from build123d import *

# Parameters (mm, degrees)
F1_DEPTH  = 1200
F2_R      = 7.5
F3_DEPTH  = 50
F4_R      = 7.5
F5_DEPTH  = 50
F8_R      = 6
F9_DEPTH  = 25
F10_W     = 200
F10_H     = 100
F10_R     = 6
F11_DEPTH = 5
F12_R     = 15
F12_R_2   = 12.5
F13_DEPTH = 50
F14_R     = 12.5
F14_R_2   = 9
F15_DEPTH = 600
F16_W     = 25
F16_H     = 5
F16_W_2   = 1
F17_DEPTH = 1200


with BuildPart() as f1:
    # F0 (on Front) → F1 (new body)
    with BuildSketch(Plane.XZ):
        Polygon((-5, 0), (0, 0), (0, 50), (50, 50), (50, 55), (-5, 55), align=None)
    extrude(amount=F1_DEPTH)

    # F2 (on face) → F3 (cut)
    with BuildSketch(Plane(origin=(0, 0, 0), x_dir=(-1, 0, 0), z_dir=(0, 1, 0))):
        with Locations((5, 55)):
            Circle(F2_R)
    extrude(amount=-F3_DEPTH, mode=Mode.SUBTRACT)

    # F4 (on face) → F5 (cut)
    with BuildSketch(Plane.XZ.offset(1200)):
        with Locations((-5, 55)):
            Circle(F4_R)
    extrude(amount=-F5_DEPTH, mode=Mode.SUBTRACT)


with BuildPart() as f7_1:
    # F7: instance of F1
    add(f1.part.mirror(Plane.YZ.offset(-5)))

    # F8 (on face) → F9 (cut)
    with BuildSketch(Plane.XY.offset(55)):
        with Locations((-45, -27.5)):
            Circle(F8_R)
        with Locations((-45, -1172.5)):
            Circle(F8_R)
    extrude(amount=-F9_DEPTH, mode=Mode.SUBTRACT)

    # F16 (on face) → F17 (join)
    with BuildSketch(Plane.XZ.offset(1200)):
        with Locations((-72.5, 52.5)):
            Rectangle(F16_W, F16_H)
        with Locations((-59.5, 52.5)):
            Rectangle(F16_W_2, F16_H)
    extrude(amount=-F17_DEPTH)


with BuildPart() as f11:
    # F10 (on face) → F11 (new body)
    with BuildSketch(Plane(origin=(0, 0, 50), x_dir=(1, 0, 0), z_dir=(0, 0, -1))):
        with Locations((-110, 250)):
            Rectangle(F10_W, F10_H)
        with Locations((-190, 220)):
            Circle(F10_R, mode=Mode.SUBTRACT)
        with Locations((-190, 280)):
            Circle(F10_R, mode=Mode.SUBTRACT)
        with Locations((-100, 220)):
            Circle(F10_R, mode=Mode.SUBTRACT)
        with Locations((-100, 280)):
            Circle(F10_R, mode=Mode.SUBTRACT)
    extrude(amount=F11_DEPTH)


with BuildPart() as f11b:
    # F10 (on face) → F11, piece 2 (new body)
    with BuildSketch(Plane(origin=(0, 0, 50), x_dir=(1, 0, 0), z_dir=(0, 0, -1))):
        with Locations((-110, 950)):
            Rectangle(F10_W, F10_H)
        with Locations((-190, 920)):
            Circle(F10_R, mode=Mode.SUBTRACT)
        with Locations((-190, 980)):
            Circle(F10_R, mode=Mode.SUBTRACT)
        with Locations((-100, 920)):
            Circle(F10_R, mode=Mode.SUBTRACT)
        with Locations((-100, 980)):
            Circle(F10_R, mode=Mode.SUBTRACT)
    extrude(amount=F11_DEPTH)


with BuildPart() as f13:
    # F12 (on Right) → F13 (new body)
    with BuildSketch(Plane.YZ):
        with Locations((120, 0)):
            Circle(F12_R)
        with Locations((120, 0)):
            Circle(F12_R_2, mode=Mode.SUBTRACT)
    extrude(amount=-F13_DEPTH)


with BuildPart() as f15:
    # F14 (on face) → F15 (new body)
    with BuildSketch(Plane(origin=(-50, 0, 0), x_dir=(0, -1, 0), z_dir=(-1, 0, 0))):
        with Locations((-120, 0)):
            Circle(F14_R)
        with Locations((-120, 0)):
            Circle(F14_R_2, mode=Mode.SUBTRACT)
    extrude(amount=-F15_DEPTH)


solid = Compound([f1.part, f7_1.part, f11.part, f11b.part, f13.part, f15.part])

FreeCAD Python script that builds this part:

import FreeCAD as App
import Part
import Sketcher

V = App.Vector
Q = App.Units.Quantity

doc = App.newDocument("Part")
body = doc.addObject("PartDesign::Body", "Body")

# Sketch on XZ plane
sketch1 = body.newObject("Sketcher::SketchObject", "Sketch")
sketch1.AttachmentSupport = (doc.getObject("XZ_Plane"), [""])
sketch1.MapMode = "FlatFace"
sketch1.addGeometry(Part.LineSegment(V(-5, 0, 0), V(0, 0, 0)), False)
sketch1.addGeometry(Part.LineSegment(V(0, 0, 0), V(0, 50, 0)), False)
sketch1.addGeometry(Part.LineSegment(V(0, 50, 0), V(50, 50, 0)), False)
sketch1.addGeometry(Part.LineSegment(V(50, 50, 0), V(50, 55, 0)), False)
sketch1.addGeometry(Part.LineSegment(V(50, 55, 0), V(-5, 55, 0)), False)
sketch1.addGeometry(Part.LineSegment(V(-5, 55, 0), V(-5, 0, 0)), False)
sketch1.addConstraint(Sketcher.Constraint("Coincident", 0, 2, 1, 1))
sketch1.addConstraint(Sketcher.Constraint("Coincident", 1, 2, 2, 1))
sketch1.addConstraint(Sketcher.Constraint("Coincident", 2, 2, 3, 1))
sketch1.addConstraint(Sketcher.Constraint("Coincident", 3, 2, 4, 1))
sketch1.addConstraint(Sketcher.Constraint("Coincident", 4, 2, 5, 1))
sketch1.addConstraint(Sketcher.Constraint("Coincident", 5, 2, 0, 1))
sketch1.addConstraint(Sketcher.Constraint("Horizontal", 0))
sketch1.addConstraint(Sketcher.Constraint("Vertical", 1))
sketch1.addConstraint(Sketcher.Constraint("Horizontal", 2))
sketch1.addConstraint(Sketcher.Constraint("Vertical", 3))
sketch1.addConstraint(Sketcher.Constraint("Horizontal", 4))
sketch1.addConstraint(Sketcher.Constraint("Vertical", 5))
sketch1.addConstraint(Sketcher.Constraint("Coincident", 0, 2, -1, 1))
sketch1.addConstraint(Sketcher.Constraint("Equal", 2, 1))
sketch1.addConstraint(Sketcher.Constraint("Equal", 0, 3))
sketch1.addConstraint(Sketcher.Constraint("DistanceX", 0, 1, 0, 2, Q("5 mm")))
sketch1.addConstraint(Sketcher.Constraint("DistanceX", 2, 1, 2, 2, Q("50 mm")))
pad1 = body.newObject("PartDesign::Pad", "Pad")
pad1.Profile = sketch1
pad1.Length = 1200

# Sketch on XZ plane
sketch2 = body.newObject("Sketcher::SketchObject", "Sketch001")
sketch2.AttachmentSupport = (doc.getObject("XZ_Plane"), [""])
sketch2.MapMode = "FlatFace"
sketch2.addGeometry(Part.Circle(V(-5, 55, 0), V(0, 0, 1), 8), False)
sketch2.addConstraint(Sketcher.Constraint("Diameter", 0, Q("15 mm")))
sketch2.addConstraint(Sketcher.Constraint("DistanceX", 0, 3, -1, 1, Q("5 mm")))
sketch2.addConstraint(Sketcher.Constraint("DistanceY", -1, 1, 0, 3, Q("55 mm")))
pocket1 = body.newObject("PartDesign::Pocket", "Pocket")
pocket1.Profile = sketch2
pocket1.Length = 50
pocket1.Reversed = True

# Sketch on XZ plane
sketch3 = body.newObject("Sketcher::SketchObject", "Sketch002")
sketch3.AttachmentSupport = (doc.getObject("XZ_Plane"), [""])
sketch3.MapMode = "FlatFace"
sketch3.AttachmentOffset = App.Placement(V(0, 0, 1200), App.Rotation())
sketch3.addGeometry(Part.Circle(V(-5, 55, 0), V(0, 0, 1), 8), False)
sketch3.addConstraint(Sketcher.Constraint("Diameter", 0, Q("15 mm")))
sketch3.addConstraint(Sketcher.Constraint("DistanceX", 0, 3, -1, 1, Q("5 mm")))
sketch3.addConstraint(Sketcher.Constraint("DistanceY", -1, 1, 0, 3, Q("55 mm")))
pocket2 = body.newObject("PartDesign::Pocket", "Pocket001")
pocket2.Profile = sketch3
pocket2.Length = 50
body2 = doc.addObject("PartDesign::Body", "Body001")
doc.recompute()

mirroring = doc.addObject("Part::Mirroring", "Mirroring")
mirroring.Source = body
mirroring.Base = V(-5, 0, 0)
mirroring.Normal = V(1, 0, 0)
body2.BaseFeature = mirroring
doc.recompute()

# Sketch on XY plane
sketch4 = body2.newObject("Sketcher::SketchObject", "Sketch003")
sketch4.AttachmentSupport = (doc.getObject("XY_Plane001"), [""])
sketch4.MapMode = "FlatFace"
sketch4.AttachmentOffset = App.Placement(V(0, 0, 55), App.Rotation())
sketch4.addGeometry(Part.Circle(V(-45, -28, 0), V(0, 0, 1), 6), False)
sketch4.addGeometry(Part.Circle(V(-45, -1172, 0), V(0, 0, 1), 6), False)
sketch4.addConstraint(Sketcher.Constraint("Equal", 0, 1))
sketch4.addConstraint(Sketcher.Constraint("Vertical", 0, 3, 1, 3))
sketch4.addConstraint(Sketcher.Constraint("Diameter", 0, Q("12 mm")))
sketch4.addConstraint(Sketcher.Constraint("DistanceX", 0, 3, -1, 1, Q("45 mm")))
sketch4.addConstraint(Sketcher.Constraint("DistanceY", 1, 3, 0, 3, Q("1145 mm")))
sketch4.addConstraint(Sketcher.Constraint("DistanceY", 0, 3, -1, 1, Q("27.5 mm")))
pocket3 = body2.newObject("PartDesign::Pocket", "Pocket002")
pocket3.Profile = sketch4
pocket3.Length = 25

# Sketch on XZ plane
sketch5 = body2.newObject("Sketcher::SketchObject", "Sketch004")
sketch5.AttachmentSupport = (doc.getObject("XZ_Plane001"), [""])
sketch5.MapMode = "FlatFace"
sketch5.AttachmentOffset = App.Placement(V(0, 0, 1200), App.Rotation())
sketch5.addGeometry(Part.LineSegment(V(-85, 55, 0), V(-85, 50, 0)), False)
sketch5.addGeometry(Part.LineSegment(V(-85, 50, 0), V(-59, 50, 0)), False)
sketch5.addGeometry(Part.LineSegment(V(-59, 50, 0), V(-59, 55, 0)), False)
sketch5.addGeometry(Part.LineSegment(V(-59, 55, 0), V(-85, 55, 0)), False)
sketch5.addConstraint(Sketcher.Constraint("Coincident", 0, 2, 1, 1))
sketch5.addConstraint(Sketcher.Constraint("Coincident", 1, 2, 2, 1))
sketch5.addConstraint(Sketcher.Constraint("Coincident", 2, 2, 3, 1))
sketch5.addConstraint(Sketcher.Constraint("Coincident", 3, 2, 0, 1))
sketch5.addConstraint(Sketcher.Constraint("Vertical", 0))
sketch5.addConstraint(Sketcher.Constraint("Horizontal", 1))
sketch5.addConstraint(Sketcher.Constraint("Vertical", 2))
sketch5.addConstraint(Sketcher.Constraint("Horizontal", 3))
sketch5.addConstraint(Sketcher.Constraint("DistanceX", 1, 1, 1, 2, Q("26 mm")))
sketch5.addConstraint(Sketcher.Constraint("DistanceY", 0, 2, 0, 1, Q("5 mm")))
sketch5.addConstraint(Sketcher.Constraint("DistanceX", 0, 2, -1, 1, Q("85 mm")))
sketch5.addConstraint(Sketcher.Constraint("DistanceY", -1, 1, 0, 2, Q("50 mm")))
pad2 = body2.newObject("PartDesign::Pad", "Pad001")
pad2.Profile = sketch5
pad2.Length = 1200
pad2.Reversed = True
body3 = doc.addObject("PartDesign::Body", "Body002")

# Sketch on XY plane
sketch6 = body3.newObject("Sketcher::SketchObject", "Sketch005")
sketch6.AttachmentSupport = (doc.getObject("XY_Plane002"), [""])
sketch6.MapMode = "FlatFace"
sketch6.AttachmentOffset = App.Placement(V(0, 0, 50), App.Rotation())
sketch6.addGeometry(Part.LineSegment(V(-210, -300, 0), V(-210, -200, 0)), False)
sketch6.addGeometry(Part.LineSegment(V(-210, -200, 0), V(-10, -200, 0)), False)
sketch6.addGeometry(Part.LineSegment(V(-10, -200, 0), V(-10, -300, 0)), False)
sketch6.addGeometry(Part.LineSegment(V(-10, -300, 0), V(-210, -300, 0)), False)
sketch6.addGeometry(Part.Circle(V(-190, -220, 0), V(0, 0, 1), 6), False)
sketch6.addGeometry(Part.Circle(V(-100, -220, 0), V(0, 0, 1), 6), False)
sketch6.addGeometry(Part.Circle(V(-190, -280, 0), V(0, 0, 1), 6), False)
sketch6.addGeometry(Part.Circle(V(-100, -280, 0), V(0, 0, 1), 6), False)
sketch6.addConstraint(Sketcher.Constraint("Coincident", 0, 2, 1, 1))
sketch6.addConstraint(Sketcher.Constraint("Coincident", 1, 2, 2, 1))
sketch6.addConstraint(Sketcher.Constraint("Coincident", 2, 2, 3, 1))
sketch6.addConstraint(Sketcher.Constraint("Coincident", 3, 2, 0, 1))
sketch6.addConstraint(Sketcher.Constraint("Vertical", 0))
sketch6.addConstraint(Sketcher.Constraint("Horizontal", 1))
sketch6.addConstraint(Sketcher.Constraint("Vertical", 2))
sketch6.addConstraint(Sketcher.Constraint("Horizontal", 3))
sketch6.addConstraint(Sketcher.Constraint("Equal", 4, 5))
sketch6.addConstraint(Sketcher.Constraint("Equal", 5, 6))
sketch6.addConstraint(Sketcher.Constraint("Equal", 6, 7))
sketch6.addConstraint(Sketcher.Constraint("Horizontal", 4, 3, 5, 3))
sketch6.addConstraint(Sketcher.Constraint("Horizontal", 6, 3, 7, 3))
sketch6.addConstraint(Sketcher.Constraint("Vertical", 4, 3, 6, 3))
sketch6.addConstraint(Sketcher.Constraint("Vertical", 5, 3, 7, 3))
sketch6.addConstraint(Sketcher.Constraint("Diameter", 4, Q("12 mm")))
sketch6.addConstraint(Sketcher.Constraint("DistanceX", 1, 1, 1, 2, Q("200 mm")))
sketch6.addConstraint(Sketcher.Constraint("DistanceY", 0, 1, 0, 2, Q("100 mm")))
sketch6.addConstraint(Sketcher.Constraint("DistanceX", 4, 3, -1, 1, Q("190 mm")))
sketch6.addConstraint(Sketcher.Constraint("DistanceY", 4, 3, -1, 1, Q("220 mm")))
sketch6.addConstraint(Sketcher.Constraint("DistanceX", 5, 3, -1, 1, Q("100 mm")))
sketch6.addConstraint(Sketcher.Constraint("DistanceY", 6, 3, -1, 1, Q("280 mm")))
sketch6.addConstraint(Sketcher.Constraint("DistanceX", 0, 2, -1, 1, Q("210 mm")))
sketch6.addConstraint(Sketcher.Constraint("DistanceY", 0, 2, -1, 1, Q("200 mm")))
pad3 = body3.newObject("PartDesign::Pad", "Pad002")
pad3.Profile = sketch6
pad3.Length = 5
pad3.Reversed = True
body4 = doc.addObject("PartDesign::Body", "Body003")

# Sketch on XY plane
sketch7 = body4.newObject("Sketcher::SketchObject", "Sketch006")
sketch7.AttachmentSupport = (doc.getObject("XY_Plane003"), [""])
sketch7.MapMode = "FlatFace"
sketch7.AttachmentOffset = App.Placement(V(0, 0, 50), App.Rotation())
sketch7.addGeometry(Part.LineSegment(V(-210, -1000, 0), V(-210, -900, 0)), False)
sketch7.addGeometry(Part.LineSegment(V(-210, -900, 0), V(-10, -900, 0)), False)
sketch7.addGeometry(Part.LineSegment(V(-10, -900, 0), V(-10, -1000, 0)), False)
sketch7.addGeometry(Part.LineSegment(V(-10, -1000, 0), V(-210, -1000, 0)), False)
sketch7.addGeometry(Part.Circle(V(-190, -920, 0), V(0, 0, 1), 6), False)
sketch7.addGeometry(Part.Circle(V(-100, -920, 0), V(0, 0, 1), 6), False)
sketch7.addGeometry(Part.Circle(V(-190, -980, 0), V(0, 0, 1), 6), False)
sketch7.addGeometry(Part.Circle(V(-100, -980, 0), V(0, 0, 1), 6), False)
sketch7.addConstraint(Sketcher.Constraint("Coincident", 0, 2, 1, 1))
sketch7.addConstraint(Sketcher.Constraint("Coincident", 1, 2, 2, 1))
sketch7.addConstraint(Sketcher.Constraint("Coincident", 2, 2, 3, 1))
sketch7.addConstraint(Sketcher.Constraint("Coincident", 3, 2, 0, 1))
sketch7.addConstraint(Sketcher.Constraint("Vertical", 0))
sketch7.addConstraint(Sketcher.Constraint("Horizontal", 1))
sketch7.addConstraint(Sketcher.Constraint("Vertical", 2))
sketch7.addConstraint(Sketcher.Constraint("Horizontal", 3))
sketch7.addConstraint(Sketcher.Constraint("Equal", 4, 5))
sketch7.addConstraint(Sketcher.Constraint("Equal", 5, 6))
sketch7.addConstraint(Sketcher.Constraint("Equal", 6, 7))
sketch7.addConstraint(Sketcher.Constraint("Horizontal", 4, 3, 5, 3))
sketch7.addConstraint(Sketcher.Constraint("Horizontal", 6, 3, 7, 3))
sketch7.addConstraint(Sketcher.Constraint("Vertical", 4, 3, 6, 3))
sketch7.addConstraint(Sketcher.Constraint("Vertical", 5, 3, 7, 3))
sketch7.addConstraint(Sketcher.Constraint("Diameter", 4, Q("12 mm")))
sketch7.addConstraint(Sketcher.Constraint("DistanceX", 1, 1, 1, 2, Q("200 mm")))
sketch7.addConstraint(Sketcher.Constraint("DistanceY", 0, 1, 0, 2, Q("100 mm")))
sketch7.addConstraint(Sketcher.Constraint("DistanceX", 4, 3, -1, 1, Q("190 mm")))
sketch7.addConstraint(Sketcher.Constraint("DistanceY", 4, 3, -1, 1, Q("920 mm")))
sketch7.addConstraint(Sketcher.Constraint("DistanceX", 5, 3, -1, 1, Q("100 mm")))
sketch7.addConstraint(Sketcher.Constraint("DistanceY", 6, 3, -1, 1, Q("980 mm")))
sketch7.addConstraint(Sketcher.Constraint("DistanceX", 0, 2, -1, 1, Q("210 mm")))
sketch7.addConstraint(Sketcher.Constraint("DistanceY", 0, 2, -1, 1, Q("900 mm")))
pad4 = body4.newObject("PartDesign::Pad", "Pad003")
pad4.Profile = sketch7
pad4.Length = 5
pad4.Reversed = True
body5 = doc.addObject("PartDesign::Body", "Body004")

# Sketch on YZ plane
sketch8 = body5.newObject("Sketcher::SketchObject", "Sketch007")
sketch8.AttachmentSupport = (doc.getObject("YZ_Plane004"), [""])
sketch8.MapMode = "FlatFace"
sketch8.addGeometry(Part.Circle(V(120, 0, 0), V(0, 0, 1), 15), False)
sketch8.addGeometry(Part.Circle(V(120, 0, 0), V(0, 0, 1), 12), False)
sketch8.addConstraint(Sketcher.Constraint("Coincident", 1, 3, 0, 3))
sketch8.addConstraint(Sketcher.Constraint("PointOnObject", 0, 3, -1))
sketch8.addConstraint(Sketcher.Constraint("Diameter", 0, Q("30 mm")))
sketch8.addConstraint(Sketcher.Constraint("Diameter", 1, Q("25 mm")))
sketch8.addConstraint(Sketcher.Constraint("DistanceX", -1, 1, 0, 3, Q("120 mm")))
pad5 = body5.newObject("PartDesign::Pad", "Pad004")
pad5.Profile = sketch8
pad5.Length = 50
pad5.Reversed = True
body6 = doc.addObject("PartDesign::Body", "Body005")

# Sketch on YZ plane
sketch9 = body6.newObject("Sketcher::SketchObject", "Sketch008")
sketch9.AttachmentSupport = (doc.getObject("YZ_Plane005"), [""])
sketch9.MapMode = "FlatFace"
sketch9.AttachmentOffset = App.Placement(V(0, 0, -50), App.Rotation())
sketch9.addGeometry(Part.Circle(V(120, 0, 0), V(0, 0, 1), 12), False)
sketch9.addGeometry(Part.Circle(V(120, 0, 0), V(0, 0, 1), 9), False)
sketch9.addConstraint(Sketcher.Constraint("Coincident", 1, 3, 0, 3))
sketch9.addConstraint(Sketcher.Constraint("PointOnObject", 0, 3, -1))
sketch9.addConstraint(Sketcher.Constraint("Diameter", 0, Q("25 mm")))
sketch9.addConstraint(Sketcher.Constraint("Diameter", 1, Q("18 mm")))
sketch9.addConstraint(Sketcher.Constraint("DistanceX", -1, 1, 0, 3, Q("120 mm")))
pad6 = body6.newObject("PartDesign::Pad", "Pad005")
pad6.Profile = sketch9
pad6.Length = 600
mirroring.Visibility = False

doc.recompute()
